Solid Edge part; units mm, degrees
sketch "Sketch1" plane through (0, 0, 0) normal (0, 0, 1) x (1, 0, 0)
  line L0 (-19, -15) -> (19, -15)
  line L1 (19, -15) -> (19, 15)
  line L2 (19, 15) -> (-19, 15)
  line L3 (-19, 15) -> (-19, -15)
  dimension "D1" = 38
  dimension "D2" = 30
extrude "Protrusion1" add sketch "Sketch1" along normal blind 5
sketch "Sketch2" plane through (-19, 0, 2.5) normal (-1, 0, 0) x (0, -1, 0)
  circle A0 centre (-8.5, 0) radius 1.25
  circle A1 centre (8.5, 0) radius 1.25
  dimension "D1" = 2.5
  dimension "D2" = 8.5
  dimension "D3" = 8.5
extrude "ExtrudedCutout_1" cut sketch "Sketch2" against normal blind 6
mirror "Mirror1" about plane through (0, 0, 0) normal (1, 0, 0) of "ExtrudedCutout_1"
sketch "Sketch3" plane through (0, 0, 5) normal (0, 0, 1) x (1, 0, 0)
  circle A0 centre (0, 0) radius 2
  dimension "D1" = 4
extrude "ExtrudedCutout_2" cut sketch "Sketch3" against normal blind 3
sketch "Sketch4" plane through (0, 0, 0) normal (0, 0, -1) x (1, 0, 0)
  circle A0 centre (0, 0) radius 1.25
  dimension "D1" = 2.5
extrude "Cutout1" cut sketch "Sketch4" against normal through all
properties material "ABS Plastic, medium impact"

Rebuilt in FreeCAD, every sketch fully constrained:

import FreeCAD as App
import Part
import Sketcher
from FreeCAD import Vector
Q = App.Units.Quantity

doc = App.newDocument("Part")
body = doc.addObject("PartDesign::Body", "Body")

# Sketch on XY plane
sketch1 = body.newObject("Sketcher::SketchObject", "Sketch")
sketch1.AttachmentSupport = (doc.getObject("XY_Plane"), [""])
sketch1.MapMode = "FlatFace"
sketch1.addGeometry(Part.LineSegment(Vector(-19, 15, 0), Vector(-19, -15, 0)), False)
sketch1.addGeometry(Part.LineSegment(Vector(-19, -15, 0), Vector(19, -15, 0)), False)
sketch1.addGeometry(Part.LineSegment(Vector(19, -15, 0), Vector(19, 15, 0)), False)
sketch1.addGeometry(Part.LineSegment(Vector(19, 15, 0), Vector(-19, 15, 0)), False)
sketch1.addConstraint(Sketcher.Constraint("Coincident", 0, 2, 1, 1))
sketch1.addConstraint(Sketcher.Constraint("Coincident", 1, 2, 2, 1))
sketch1.addConstraint(Sketcher.Constraint("Coincident", 2, 2, 3, 1))
sketch1.addConstraint(Sketcher.Constraint("Coincident", 3, 2, 0, 1))
sketch1.addConstraint(Sketcher.Constraint("Vertical", 0))
sketch1.addConstraint(Sketcher.Constraint("Horizontal", 1))
sketch1.addConstraint(Sketcher.Constraint("Vertical", 2))
sketch1.addConstraint(Sketcher.Constraint("Horizontal", 3))
sketch1.addConstraint(Sketcher.Constraint("Symmetric", 0, 2, 2, 2, -1, 1))
sketch1.addConstraint(Sketcher.Constraint("DistanceX", 0, 2, -1, 1, Q("19 mm")))
sketch1.addConstraint(Sketcher.Constraint("DistanceY", 0, 2, 0, 1, Q("30 mm")))
pad1 = body.newObject("PartDesign::Pad", "Pad")
pad1.Profile = sketch1
pad1.Length = 5

# Sketch on YZ plane
sketch2 = body.newObject("Sketcher::SketchObject", "Sketch001")
sketch2.AttachmentSupport = (doc.getObject("YZ_Plane"), [""])
sketch2.MapMode = "FlatFace"
sketch2.AttachmentOffset = App.Placement(Vector(0, 0, -19), App.Rotation())
sketch2.addGeometry(Part.Circle(Vector(8.5, 2.5, 0), Vector(0, 0, 1), 1.2), False)
sketch2.addGeometry(Part.Circle(Vector(-8.5, 2.5, 0), Vector(0, 0, 1), 1.2), False)
sketch2.addConstraint(Sketcher.Constraint("Equal", 0, 1))
sketch2.addConstraint(Sketcher.Constraint("Symmetric", 0, 3, 1, 3, -2))
sketch2.addConstraint(Sketcher.Constraint("Diameter", 0, Q("2.5 mm")))
sketch2.addConstraint(Sketcher.Constraint("DistanceX", 1, 3, 0, 3, Q("17 mm")))
sketch2.addConstraint(Sketcher.Constraint("DistanceY", -1, 1, 0, 3, Q("2.5 mm")))
pocket1 = body.newObject("PartDesign::Pocket", "Pocket")
pocket1.Profile = sketch2
pocket1.Length = 6
pocket1.Reversed = True
doc.recompute()

mirrored = body.newObject("PartDesign::Mirrored", "Mirrored")
mirrored.Originals = [pocket1]
mirrored.MirrorPlane = (doc.getObject("YZ_Plane"), [""])
body.Tip = mirrored

# Sketch on XY plane
sketch3 = body.newObject("Sketcher::SketchObject", "Sketch002")
sketch3.AttachmentSupport = (doc.getObject("XY_Plane"), [""])
sketch3.MapMode = "FlatFace"
sketch3.AttachmentOffset = App.Placement(Vector(0, 0, 5), App.Rotation())
sketch3.addGeometry(Part.Circle(Vector(0, 0, 0), Vector(0, 0, 1), 2), False)
sketch3.addConstraint(Sketcher.Constraint("Coincident", 0, 3, -1, 1))
sketch3.addConstraint(Sketcher.Constraint("Diameter", 0, Q("4 mm")))
pocket2 = body.newObject("PartDesign::Pocket", "Pocket001")
pocket2.Profile = sketch3
pocket2.Length = 3

# Sketch on XY plane
sketch4 = body.newObject("Sketcher::SketchObject", "Sketch003")
sketch4.AttachmentSupport = (doc.getObject("XY_Plane"), [""])
sketch4.MapMode = "FlatFace"
sketch4.addGeometry(Part.Circle(Vector(0, 0, 0), Vector(0, 0, 1), 1.2), False)
sketch4.addConstraint(Sketcher.Constraint("Coincident", 0, 3, -1, 1))
sketch4.addConstraint(Sketcher.Constraint("Diameter", 0, Q("2.5 mm")))
pocket3 = body.newObject("PartDesign::Pocket", "Pocket002")
pocket3.Profile = sketch4
pocket3.Type = "ThroughAll"
pocket3.Reversed = True

doc.recompute()
